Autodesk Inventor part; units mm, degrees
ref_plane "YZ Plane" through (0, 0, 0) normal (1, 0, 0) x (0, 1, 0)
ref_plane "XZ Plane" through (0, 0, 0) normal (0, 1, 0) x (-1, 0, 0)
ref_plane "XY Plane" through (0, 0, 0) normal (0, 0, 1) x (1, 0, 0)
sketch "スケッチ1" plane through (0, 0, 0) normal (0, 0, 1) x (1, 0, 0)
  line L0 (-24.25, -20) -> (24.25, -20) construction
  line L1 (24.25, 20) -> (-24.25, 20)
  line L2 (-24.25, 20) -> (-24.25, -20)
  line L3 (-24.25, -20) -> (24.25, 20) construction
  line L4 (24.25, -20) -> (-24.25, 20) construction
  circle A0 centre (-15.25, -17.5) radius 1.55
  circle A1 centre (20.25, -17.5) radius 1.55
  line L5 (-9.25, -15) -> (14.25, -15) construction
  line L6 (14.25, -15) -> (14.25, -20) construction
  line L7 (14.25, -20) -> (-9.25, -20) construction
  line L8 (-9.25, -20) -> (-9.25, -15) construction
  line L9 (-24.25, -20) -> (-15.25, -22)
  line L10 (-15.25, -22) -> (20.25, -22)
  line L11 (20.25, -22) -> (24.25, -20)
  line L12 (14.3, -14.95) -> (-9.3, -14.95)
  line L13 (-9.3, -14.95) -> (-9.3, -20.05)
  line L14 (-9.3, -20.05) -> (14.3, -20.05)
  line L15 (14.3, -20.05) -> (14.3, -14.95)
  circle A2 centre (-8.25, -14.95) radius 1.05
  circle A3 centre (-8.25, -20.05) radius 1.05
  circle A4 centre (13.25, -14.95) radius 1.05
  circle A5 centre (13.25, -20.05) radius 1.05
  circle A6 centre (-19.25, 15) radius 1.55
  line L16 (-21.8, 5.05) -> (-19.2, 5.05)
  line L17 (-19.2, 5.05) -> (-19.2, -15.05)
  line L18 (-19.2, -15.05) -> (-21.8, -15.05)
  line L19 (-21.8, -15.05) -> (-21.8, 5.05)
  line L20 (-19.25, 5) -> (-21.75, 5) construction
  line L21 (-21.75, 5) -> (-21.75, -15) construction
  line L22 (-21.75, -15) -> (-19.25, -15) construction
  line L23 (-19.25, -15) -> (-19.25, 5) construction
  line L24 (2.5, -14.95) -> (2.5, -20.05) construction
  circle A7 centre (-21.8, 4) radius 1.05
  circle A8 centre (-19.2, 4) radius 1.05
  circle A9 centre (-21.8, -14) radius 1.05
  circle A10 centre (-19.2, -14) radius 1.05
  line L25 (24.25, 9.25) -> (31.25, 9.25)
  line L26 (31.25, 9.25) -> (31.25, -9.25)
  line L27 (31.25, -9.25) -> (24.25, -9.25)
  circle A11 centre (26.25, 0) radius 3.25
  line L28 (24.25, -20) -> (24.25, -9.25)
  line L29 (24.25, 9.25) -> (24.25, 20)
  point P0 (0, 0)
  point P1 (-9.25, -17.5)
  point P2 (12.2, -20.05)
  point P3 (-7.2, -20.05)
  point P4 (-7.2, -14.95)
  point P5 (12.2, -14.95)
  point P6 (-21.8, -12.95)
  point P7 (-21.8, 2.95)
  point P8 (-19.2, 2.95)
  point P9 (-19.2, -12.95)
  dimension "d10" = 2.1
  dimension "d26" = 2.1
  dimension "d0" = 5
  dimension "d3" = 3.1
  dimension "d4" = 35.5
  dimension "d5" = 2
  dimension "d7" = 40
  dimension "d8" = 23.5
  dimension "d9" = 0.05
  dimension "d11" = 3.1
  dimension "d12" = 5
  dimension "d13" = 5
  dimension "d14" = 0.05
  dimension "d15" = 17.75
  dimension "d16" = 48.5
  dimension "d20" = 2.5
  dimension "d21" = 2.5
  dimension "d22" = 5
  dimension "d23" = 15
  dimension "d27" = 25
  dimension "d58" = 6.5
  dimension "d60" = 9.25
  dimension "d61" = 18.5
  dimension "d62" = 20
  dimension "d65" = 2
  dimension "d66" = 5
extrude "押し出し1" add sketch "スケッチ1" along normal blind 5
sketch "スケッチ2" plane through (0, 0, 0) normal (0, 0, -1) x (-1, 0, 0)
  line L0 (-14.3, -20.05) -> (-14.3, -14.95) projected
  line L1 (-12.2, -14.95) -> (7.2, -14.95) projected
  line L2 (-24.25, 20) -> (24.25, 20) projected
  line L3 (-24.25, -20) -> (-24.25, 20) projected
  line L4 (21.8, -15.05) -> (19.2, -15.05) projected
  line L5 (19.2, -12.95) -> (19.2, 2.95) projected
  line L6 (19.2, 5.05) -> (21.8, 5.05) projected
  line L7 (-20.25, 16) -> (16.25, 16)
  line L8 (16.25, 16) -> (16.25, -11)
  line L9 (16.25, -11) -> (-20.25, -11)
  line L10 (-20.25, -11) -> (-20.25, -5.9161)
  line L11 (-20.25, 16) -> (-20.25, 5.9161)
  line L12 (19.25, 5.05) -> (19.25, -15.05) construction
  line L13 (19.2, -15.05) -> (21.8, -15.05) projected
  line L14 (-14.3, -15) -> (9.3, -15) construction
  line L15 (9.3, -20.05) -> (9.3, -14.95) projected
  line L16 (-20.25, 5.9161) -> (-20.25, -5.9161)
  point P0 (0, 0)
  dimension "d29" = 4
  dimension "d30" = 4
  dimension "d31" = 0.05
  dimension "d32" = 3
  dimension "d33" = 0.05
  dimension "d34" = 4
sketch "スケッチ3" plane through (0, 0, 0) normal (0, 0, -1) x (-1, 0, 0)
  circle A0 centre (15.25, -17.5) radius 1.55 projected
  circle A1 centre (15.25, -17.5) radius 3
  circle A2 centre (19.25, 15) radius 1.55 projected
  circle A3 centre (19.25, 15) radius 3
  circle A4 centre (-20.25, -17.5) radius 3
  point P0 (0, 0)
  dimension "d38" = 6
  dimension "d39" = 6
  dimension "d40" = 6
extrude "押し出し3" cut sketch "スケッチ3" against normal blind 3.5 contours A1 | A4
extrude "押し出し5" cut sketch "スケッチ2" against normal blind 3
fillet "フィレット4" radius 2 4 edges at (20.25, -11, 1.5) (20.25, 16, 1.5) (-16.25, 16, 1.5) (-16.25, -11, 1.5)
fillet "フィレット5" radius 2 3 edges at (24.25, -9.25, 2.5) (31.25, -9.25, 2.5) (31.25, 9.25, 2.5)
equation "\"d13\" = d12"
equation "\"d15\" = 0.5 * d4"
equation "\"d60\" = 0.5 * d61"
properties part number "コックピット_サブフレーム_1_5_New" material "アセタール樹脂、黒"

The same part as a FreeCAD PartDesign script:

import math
import FreeCAD as App
import Part
import Sketcher
from FreeCAD import Vector
Q = App.Units.Quantity


def edges_at(feature, points):
    """Names of the edges that pass closest to the given points."""
    edges = feature.Shape.Edges
    near = lambda p: min(range(len(edges)), key=lambda i: edges[i].distToShape(Part.Vertex(*p))[0])
    return sorted({f"Edge{near(p) + 1}" for p in points})

doc = App.newDocument("Part")
body = doc.addObject("PartDesign::Body", "Body")

# Sketch on XY plane
sketch1 = body.newObject("Sketcher::SketchObject", "Sketch")
sketch1.AttachmentSupport = (doc.getObject("XY_Plane"), [""])
sketch1.MapMode = "FlatFace"
sketch1.addGeometry(Part.LineSegment(Vector(24.25, 9.25, 0), Vector(24.25, 20, 0)), False)
sketch1.addGeometry(Part.LineSegment(Vector(24.25, 20, 0), Vector(-24.25, 20, 0)), False)
sketch1.addGeometry(Part.LineSegment(Vector(-24.25, 20, 0), Vector(-24.25, -20, 0)), False)
sketch1.addGeometry(Part.LineSegment(Vector(-24.25, -20, 0), Vector(-15.25, -22, 0)), False)
sketch1.addGeometry(Part.LineSegment(Vector(-15.25, -22, 0), Vector(20.25, -22, 0)), False)
sketch1.addGeometry(Part.LineSegment(Vector(20.25, -22, 0), Vector(24.25, -20, 0)), False)
sketch1.addGeometry(Part.LineSegment(Vector(24.25, -20, 0), Vector(24.25, -9.25, 0)), False)
sketch1.addGeometry(Part.LineSegment(Vector(24.25, -9.25, 0), Vector(31.25, -9.25, 0)), False)
sketch1.addGeometry(Part.LineSegment(Vector(31.25, -9.25, 0), Vector(31.25, 9.25, 0)), False)
sketch1.addGeometry(Part.LineSegment(Vector(31.25, 9.25, 0), Vector(24.25, 9.25, 0)), False)
sketch1.addGeometry(Part.Circle(Vector(-15.25, -17.5, 0), Vector(0, 0, 1), 1.55), False)
sketch1.addGeometry(Part.ArcOfCircle(Part.Circle(Vector(-8.25, -14.95, 0), Vector(0, 0, 1), 1.05), math.radians(0), math.radians(180)), False)
sketch1.addGeometry(Part.LineSegment(Vector(-7.2, -14.95, 0), Vector(12.2, -14.95, 0)), False)
sketch1.addGeometry(Part.ArcOfCircle(Part.Circle(Vector(13.25, -14.95, 0), Vector(0, 0, 1), 1.05), math.radians(0), math.radians(180)), False)
sketch1.addGeometry(Part.LineSegment(Vector(14.3, -14.95, 0), Vector(14.3, -20.05, 0)), False)
sketch1.addGeometry(Part.ArcOfCircle(Part.Circle(Vector(13.25, -20.05, 0), Vector(0, 0, 1), 1.05), math.radians(180), math.radians(360)), False)
sketch1.addGeometry(Part.LineSegment(Vector(12.2, -20.05, 0), Vector(-7.2, -20.05, 0)), False)
sketch1.addGeometry(Part.ArcOfCircle(Part.Circle(Vector(-8.25, -20.05, 0), Vector(0, 0, 1), 1.05), math.radians(180), math.radians(360)), False)
sketch1.addGeometry(Part.LineSegment(Vector(-9.3, -20.05, 0), Vector(-9.3, -14.95, 0)), False)
sketch1.addGeometry(Part.ArcOfCircle(Part.Circle(Vector(-21.8, 4, 0), Vector(0, 0, 1), 1.05), math.radians(90), math.radians(270)), False)
sketch1.addGeometry(Part.LineSegment(Vector(-21.8, 5.05, 0), Vector(-19.2, 5.05, 0)), False)
sketch1.addGeometry(Part.ArcOfCircle(Part.Circle(Vector(-19.2, 4, 0), Vector(0, 0, 1), 1.05), math.radians(-90), math.radians(90)), False)
sketch1.addGeometry(Part.LineSegment(Vector(-19.2, 2.95, 0), Vector(-19.2, -12.95, 0)), False)
sketch1.addGeometry(Part.ArcOfCircle(Part.Circle(Vector(-19.2, -14, 0), Vector(0, 0, 1), 1.05), math.radians(-90), math.radians(90)), False)
sketch1.addGeometry(Part.LineSegment(Vector(-19.2, -15.05, 0), Vector(-21.8, -15.05, 0)), False)
sketch1.addGeometry(Part.ArcOfCircle(Part.Circle(Vector(-21.8, -14, 0), Vector(0, 0, 1), 1.05), math.radians(90), math.radians(270)), False)
sketch1.addGeometry(Part.LineSegment(Vector(-21.8, -12.95, 0), Vector(-21.8, 2.95, 0)), False)
sketch1.addGeometry(Part.Circle(Vector(20.25, -17.5, 0), Vector(0, 0, 1), 1.55), False)
sketch1.addGeometry(Part.Circle(Vector(-19.25, 15, 0), Vector(0, 0, 1), 1.55), False)
sketch1.addGeometry(Part.Circle(Vector(26.25, 0, 0), Vector(0, 0, 1), 3.25), False)
sketch1.addConstraint(Sketcher.Constraint("Coincident", 0, 2, 1, 1))
sketch1.addConstraint(Sketcher.Constraint("Coincident", 1, 2, 2, 1))
sketch1.addConstraint(Sketcher.Constraint("Coincident", 2, 2, 3, 1))
sketch1.addConstraint(Sketcher.Constraint("Coincident", 3, 2, 4, 1))
sketch1.addConstraint(Sketcher.Constraint("Coincident", 4, 2, 5, 1))
sketch1.addConstraint(Sketcher.Constraint("Coincident", 5, 2, 6, 1))
sketch1.addConstraint(Sketcher.Constraint("Coincident", 6, 2, 7, 1))
sketch1.addConstraint(Sketcher.Constraint("Coincident", 7, 2, 8, 1))
sketch1.addConstraint(Sketcher.Constraint("Coincident", 8, 2, 9, 1))
sketch1.addConstraint(Sketcher.Constraint("Coincident", 9, 2, 0, 1))
sketch1.addConstraint(Sketcher.Constraint("Coincident", 11, 1, 12, 1))
sketch1.addConstraint(Sketcher.Constraint("Coincident", 12, 2, 13, 2))
sketch1.addConstraint(Sketcher.Constraint("Tangent", 13, 1, 14, 1))
sketch1.addConstraint(Sketcher.Constraint("Tangent", 14, 2, 15, 2))
sketch1.addConstraint(Sketcher.Constraint("Coincident", 15, 1, 16, 1))
sketch1.addConstraint(Sketcher.Constraint("Coincident", 16, 2, 17, 2))
sketch1.addConstraint(Sketcher.Constraint("Tangent", 17, 1, 18, 1))
sketch1.addConstraint(Sketcher.Constraint("Tangent", 18, 2, 11, 2))
sketch1.addConstraint(Sketcher.Constraint("Tangent", 19, 1, 20, 1))
sketch1.addConstraint(Sketcher.Constraint("Tangent", 20, 2, 21, 2))
sketch1.addConstraint(Sketcher.Constraint("Coincident", 21, 1, 22, 1))
sketch1.addConstraint(Sketcher.Constraint("Coincident", 22, 2, 23, 2))
sketch1.addConstraint(Sketcher.Constraint("Tangent", 23, 1, 24, 1))
sketch1.addConstraint(Sketcher.Constraint("Tangent", 24, 2, 25, 2))
sketch1.addConstraint(Sketcher.Constraint("Coincident", 25, 1, 26, 1))
sketch1.addConstraint(Sketcher.Constraint("Coincident", 26, 2, 19, 2))
sketch1.addConstraint(Sketcher.Constraint("Vertical", 0))
sketch1.addConstraint(Sketcher.Constraint("Horizontal", 1))
sketch1.addConstraint(Sketcher.Constraint("Vertical", 2))
sketch1.addConstraint(Sketcher.Constraint("Horizontal", 4))
sketch1.addConstraint(Sketcher.Constraint("Vertical", 6))
sketch1.addConstraint(Sketcher.Constraint("Horizontal", 7))
sketch1.addConstraint(Sketcher.Constraint("Vertical", 8))
sketch1.addConstraint(Sketcher.Constraint("Horizontal", 9))
sketch1.addConstraint(Sketcher.Constraint("Horizontal", 12))
sketch1.addConstraint(Sketcher.Constraint("Vertical", 14))
sketch1.addConstraint(Sketcher.Constraint("Horizontal", 16))
sketch1.addConstraint(Sketcher.Constraint("Vertical", 18))
sketch1.addConstraint(Sketcher.Constraint("Horizontal", 20))
sketch1.addConstraint(Sketcher.Constraint("Vertical", 22))
sketch1.addConstraint(Sketcher.Constraint("Horizontal", 24))
sketch1.addConstraint(Sketcher.Constraint("Vertical", 26))
sketch1.addConstraint(Sketcher.Constraint("Equal", 11, 13))
sketch1.addConstraint(Sketcher.Constraint("Equal", 13, 15))
sketch1.addConstraint(Sketcher.Constraint("Equal", 15, 17))
sketch1.addConstraint(Sketcher.Constraint("Equal", 17, 19))
sketch1.addConstraint(Sketcher.Constraint("Equal", 19, 21))
sketch1.addConstraint(Sketcher.Constraint("Equal", 21, 23))
sketch1.addConstraint(Sketcher.Constraint("Equal", 23, 25))
sketch1.addConstraint(Sketcher.Constraint("Equal", 10, 27))
sketch1.addConstraint(Sketcher.Constraint("Equal", 27, 28))
sketch1.addConstraint(Sketcher.Constraint("Symmetric", 0, 2, 2, 2, -1, 1))
sketch1.addConstraint(Sketcher.Constraint("Symmetric", 1, 2, 5, 2, -1, 1))
sketch1.addConstraint(Sketcher.Constraint("PointOnObject", 29, 3, -1))
sketch1.addConstraint(Sketcher.Constraint("Horizontal", 11, 3, 13, 3))
sketch1.addConstraint(Sketcher.Constraint("Horizontal", 15, 3, 17, 3))
sketch1.addConstraint(Sketcher.Constraint("Horizontal", 10, 3, 27, 3))
sketch1.addConstraint(Sketcher.Constraint("Horizontal", 13, 3, 11, 1))
sketch1.addConstraint(Sketcher.Constraint("Horizontal", 14, 2, 15, 1))
sketch1.addConstraint(Sketcher.Constraint("Vertical", 21, 3, 23, 3))
sketch1.addConstraint(Sketcher.Constraint("Vertical", 19, 3, 25, 3))
sketch1.addConstraint(Sketcher.Constraint("Vertical", 10, 3, 3, 2))
sketch1.addConstraint(Sketcher.Constraint("Vertical", 27, 3, 4, 2))
sketch1.addConstraint(Sketcher.Constraint("Vertical", 20, 2, 21, 1))
sketch1.addConstraint(Sketcher.Constraint("Vertical", 24, 2, 25, 1))
sketch1.addConstraint(Sketcher.Constraint("Equal", 0, 6))
sketch1.addConstraint(Sketcher.Constraint("Diameter", 10, Q("3.1 mm")))
sketch1.addConstraint(Sketcher.Constraint("Diameter", 29, Q("6.5 mm")))
sketch1.addConstraint(Sketcher.Constraint("DistanceY", 2, 2, 2, 1, Q("40 mm")))
sketch1.addConstraint(Sketcher.Constraint("Radius", 11, Q("1.05 mm")))
sketch1.addConstraint(Sketcher.Constraint("DistanceX", 1, 2, 1, 1, Q("48.5 mm")))
sketch1.addConstraint(Sketcher.Constraint("DistanceX", 4, 1, 4, 2, Q("35.5 mm")))
sketch1.addConstraint(Sketcher.Constraint("DistanceY", 8, 1, 8, 2, Q("18.5 mm")))
sketch1.addConstraint(Sketcher.Constraint("DistanceY", -1, 1, 28, 3, Q("15 mm")))
sketch1.addConstraint(Sketcher.Constraint("DistanceX", 0, 2, 29, 3, Q("2 mm")))
sketch1.addConstraint(Sketcher.Constraint("DistanceX", 1, 2, 28, 3, Q("5 mm")))
sketch1.addConstraint(Sketcher.Constraint("DistanceY", 3, 2, 2, 2, Q("2 mm")))
sketch1.addConstraint(Sketcher.Constraint("DistanceX", 29, 3, 7, 2, Q("5 mm")))
sketch1.addConstraint(Sketcher.Constraint("DistanceY", 2, 2, 10, 3, Q("2.5 mm")))
sketch1.addConstraint(Sketcher.Constraint("DistanceX", 28, 3, 21, 3, Q("0.05 mm")))
sketch1.addConstraint(Sketcher.Constraint("DistanceY", 17, 3, 2, 2, Q("0.05 mm")))
sketch1.addConstraint(Sketcher.Constraint("DistanceX", 12, 1, 12, 2, Q("19.4 mm")))
sketch1.addConstraint(Sketcher.Constraint("DistanceX", 20, 1, 20, 2, Q("2.6 mm")))
sketch1.addConstraint(Sketcher.Constraint("DistanceY", 14, 2, 14, 1, Q("5.1 mm")))
sketch1.addConstraint(Sketcher.Constraint("DistanceY", 22, 2, 22, 1, Q("15.9 mm")))
sketch1.addConstraint(Sketcher.Constraint("DistanceY", -1, 1, 19, 3, Q("4 mm")))
sketch1.addConstraint(Sketcher.Constraint("DistanceX", 10, 3, 11, 3, Q("7 mm")))
sketch1.addConstraint(Sketcher.Constraint("DistanceX", 28, 3, 11, 3, Q("11 mm")))
pad1 = body.newObject("PartDesign::Pad", "Pad")
pad1.Profile = sketch1
pad1.Length = 5

# Sketch on XY plane
sketch2 = body.newObject("Sketcher::SketchObject", "Sketch001")
sketch2.AttachmentSupport = (doc.getObject("XY_Plane"), [""])
sketch2.MapMode = "FlatFace"
sketch2.addGeometry(Part.Circle(Vector(-15.25, -17.5, 0), Vector(0, 0, 1), 3), False)
sketch2.addGeometry(Part.Circle(Vector(-15.25, -17.5, 0), Vector(0, 0, 1), 1.55), False)
sketch2.addGeometry(Part.Circle(Vector(20.25, -17.5, 0), Vector(0, 0, 1), 3), False)
sketch2.addConstraint(Sketcher.Constraint("Coincident", 1, 3, 0, 3))
sketch2.addConstraint(Sketcher.Constraint("Equal", 0, 2))
sketch2.addConstraint(Sketcher.Constraint("Horizontal", 1, 3, 2, 3))
sketch2.addConstraint(Sketcher.Constraint("Diameter", 0, Q("6 mm")))
sketch2.addConstraint(Sketcher.Constraint("Diameter", 1, Q("3.1 mm")))
sketch2.addConstraint(Sketcher.Constraint("DistanceY", 0, 3, -1, 1, Q("17.5 mm")))
sketch2.addConstraint(Sketcher.Constraint("DistanceX", 0, 3, 2, 3, Q("35.5 mm")))
sketch2.addConstraint(Sketcher.Constraint("DistanceX", 0, 3, -1, 1, Q("15.25 mm")))
pocket1 = body.newObject("PartDesign::Pocket", "Pocket")
pocket1.Profile = sketch2
pocket1.Length = 3.5
pocket1.Reversed = True

# Sketch on XY plane
sketch3 = body.newObject("Sketcher::SketchObject", "Sketch002")
sketch3.AttachmentSupport = (doc.getObject("XY_Plane"), [""])
sketch3.MapMode = "FlatFace"
sketch3.addGeometry(Part.LineSegment(Vector(-16.25, 16, 0), Vector(20.25, 16, 0)), False)
sketch3.addGeometry(Part.LineSegment(Vector(20.25, 16, 0), Vector(20.25, -11, 0)), False)
sketch3.addGeometry(Part.LineSegment(Vector(20.25, -11, 0), Vector(-16.25, -11, 0)), False)
sketch3.addGeometry(Part.LineSegment(Vector(-16.25, -11, 0), Vector(-16.25, 16, 0)), False)
sketch3.addConstraint(Sketcher.Constraint("Coincident", 0, 2, 1, 1))
sketch3.addConstraint(Sketcher.Constraint("Coincident", 1, 2, 2, 1))
sketch3.addConstraint(Sketcher.Constraint("Coincident", 2, 2, 3, 1))
sketch3.addConstraint(Sketcher.Constraint("Coincident", 3, 2, 0, 1))
sketch3.addConstraint(Sketcher.Constraint("Horizontal", 0))
sketch3.addConstraint(Sketcher.Constraint("Vertical", 1))
sketch3.addConstraint(Sketcher.Constraint("Horizontal", 2))
sketch3.addConstraint(Sketcher.Constraint("Vertical", 3))
sketch3.addConstraint(Sketcher.Constraint("DistanceY", 1, 2, 1, 1, Q("27 mm")))
sketch3.addConstraint(Sketcher.Constraint("DistanceX", 0, 1, 0, 2, Q("36.5 mm")))
sketch3.addConstraint(Sketcher.Constraint("DistanceY", -1, 1, 0, 2, Q("16 mm")))
sketch3.addConstraint(Sketcher.Constraint("DistanceX", -1, 1, 0, 2, Q("20.25 mm")))
pocket2 = body.newObject("PartDesign::Pocket", "Pocket001")
pocket2.Profile = sketch3
pocket2.Length = 3
pocket2.Reversed = True
doc.recompute()

fillet = body.newObject("PartDesign::Fillet", "Fillet")
fillet.Base = (pocket2, edges_at(pocket2, [
    (20.25, -11, 1.5),
    (20.25, 16, 1.5),
    (-16.25, 16, 1.5),
    (-16.25, -11, 1.5),
]))
fillet.Radius = 2
doc.recompute()

fillet2 = body.newObject("PartDesign::Fillet", "Fillet001")
fillet2.Base = (fillet, edges_at(fillet, [(24.25, -9.25, 2.5), (31.25, -9.25, 2.5), (31.25, 9.25, 2.5)]))
fillet2.Radius = 2

doc.recompute()
